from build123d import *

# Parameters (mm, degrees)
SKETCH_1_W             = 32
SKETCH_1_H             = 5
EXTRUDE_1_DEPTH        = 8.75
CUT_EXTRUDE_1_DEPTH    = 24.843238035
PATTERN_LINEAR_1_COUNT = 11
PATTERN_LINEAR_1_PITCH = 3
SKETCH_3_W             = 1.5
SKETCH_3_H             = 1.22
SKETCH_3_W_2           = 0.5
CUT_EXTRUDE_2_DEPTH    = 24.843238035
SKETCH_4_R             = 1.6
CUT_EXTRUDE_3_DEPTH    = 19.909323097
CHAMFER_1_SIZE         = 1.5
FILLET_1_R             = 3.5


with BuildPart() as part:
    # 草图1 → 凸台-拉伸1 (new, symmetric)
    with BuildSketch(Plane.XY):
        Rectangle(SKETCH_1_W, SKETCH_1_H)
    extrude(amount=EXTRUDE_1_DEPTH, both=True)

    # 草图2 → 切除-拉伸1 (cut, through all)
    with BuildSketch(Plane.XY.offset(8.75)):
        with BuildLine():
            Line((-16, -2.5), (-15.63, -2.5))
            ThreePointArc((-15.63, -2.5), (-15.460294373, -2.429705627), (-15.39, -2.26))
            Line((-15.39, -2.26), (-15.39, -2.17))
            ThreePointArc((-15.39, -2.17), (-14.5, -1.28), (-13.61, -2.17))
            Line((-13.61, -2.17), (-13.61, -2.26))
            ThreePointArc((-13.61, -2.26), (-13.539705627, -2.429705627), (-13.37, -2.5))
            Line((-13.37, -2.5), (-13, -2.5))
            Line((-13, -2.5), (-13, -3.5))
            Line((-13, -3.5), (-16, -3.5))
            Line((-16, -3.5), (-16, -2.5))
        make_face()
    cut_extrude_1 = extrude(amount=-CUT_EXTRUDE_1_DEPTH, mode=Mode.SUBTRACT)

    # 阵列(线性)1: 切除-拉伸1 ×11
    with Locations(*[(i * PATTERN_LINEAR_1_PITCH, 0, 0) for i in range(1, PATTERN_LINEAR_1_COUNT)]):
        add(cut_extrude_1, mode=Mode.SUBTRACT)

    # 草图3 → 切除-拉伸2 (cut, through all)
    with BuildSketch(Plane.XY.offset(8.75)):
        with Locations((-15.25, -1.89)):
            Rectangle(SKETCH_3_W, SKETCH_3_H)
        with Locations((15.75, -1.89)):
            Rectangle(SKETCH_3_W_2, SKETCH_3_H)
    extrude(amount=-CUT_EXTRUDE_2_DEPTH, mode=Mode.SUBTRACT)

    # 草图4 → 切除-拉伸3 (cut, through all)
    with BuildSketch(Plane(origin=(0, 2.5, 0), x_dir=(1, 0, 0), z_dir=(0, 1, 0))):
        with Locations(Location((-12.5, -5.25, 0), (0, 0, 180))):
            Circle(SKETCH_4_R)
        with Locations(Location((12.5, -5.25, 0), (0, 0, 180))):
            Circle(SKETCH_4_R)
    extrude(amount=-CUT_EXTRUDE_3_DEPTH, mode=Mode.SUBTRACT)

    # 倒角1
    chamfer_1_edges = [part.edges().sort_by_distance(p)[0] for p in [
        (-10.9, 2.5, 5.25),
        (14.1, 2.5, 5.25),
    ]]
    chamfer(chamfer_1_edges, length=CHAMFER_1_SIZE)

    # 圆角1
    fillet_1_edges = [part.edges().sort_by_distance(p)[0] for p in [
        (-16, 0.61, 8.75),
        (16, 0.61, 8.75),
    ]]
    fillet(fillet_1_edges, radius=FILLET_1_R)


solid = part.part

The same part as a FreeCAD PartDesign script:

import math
import FreeCAD as App
import Part
import Sketcher


def edges_at(feature, points):
    """Names of the edges that pass closest to the given points."""
    edges = feature.Shape.Edges
    near = lambda p: min(range(len(edges)), key=lambda i: edges[i].distToShape(Part.Vertex(*p))[0])
    return sorted({f"Edge{near(p) + 1}" for p in points})


def add_polygon(sketch, points):
    """Adds a closed chain of lines whose ends are joined by coincident constraints."""
    first, n = sketch.GeometryCount, len(points)
    for a, b in zip(points, points[1:] + points[:1]):
        sketch.addGeometry(Part.LineSegment(App.Vector(*a, 0), App.Vector(*b, 0)), False)
    for i in range(n):
        sketch.addConstraint(Sketcher.Constraint("Coincident", first + i, 2, first + (i + 1) % n, 1))

doc = App.newDocument("Part")
body = doc.addObject("PartDesign::Body", "Body")

sketch1 = doc.addObject("Sketcher::SketchObject", "Sketch")
body.addObject(sketch1)
sketch1.AttachmentSupport = (doc.XY_Plane, [""])
sketch1.MapMode = "FlatFace"
add_polygon(sketch1, [(-16, 2.5), (-16, -2.5), (16, -2.5), (16, 2.5)])
sketch1.addConstraint([
    Sketcher.Constraint("Vertical", 0),
    Sketcher.Constraint("Horizontal", 1),
    Sketcher.Constraint("Vertical", 2),
    Sketcher.Constraint("Horizontal", 3),
    Sketcher.Constraint("Symmetric", 0, 2, 2, 2, -1, 1),
    Sketcher.Constraint("DistanceX", 1, 1, 1, 2, 32.0),
    Sketcher.Constraint("DistanceY", 0, 2, 0, 1, 5.0),
])
pad1 = doc.addObject("PartDesign::Pad", "Pad")
body.addObject(pad1)
pad1.Profile = sketch1
pad1.Length = 17.5
pad1.Midplane = True

sketch2 = doc.addObject("Sketcher::SketchObject", "Sketch001")
body.addObject(sketch2)
sketch2.AttachmentSupport = (doc.XY_Plane, [""])
sketch2.MapMode = "FlatFace"
sketch2.AttachmentOffset = App.Placement(App.Vector(0, 0, 8.75), App.Rotation())
sketch2.addGeometry([
    Part.LineSegment(App.Vector(-15.63, -2.5, 0), App.Vector(-16, -2.5, 0)),
    Part.LineSegment(App.Vector(-16, -2.5, 0), App.Vector(-16, -3.5, 0)),
    Part.LineSegment(App.Vector(-16, -3.5, 0), App.Vector(-13, -3.5, 0)),
    Part.LineSegment(App.Vector(-13, -3.5, 0), App.Vector(-13, -2.5, 0)),
    Part.LineSegment(App.Vector(-13, -2.5, 0), App.Vector(-13.37, -2.5, 0)),
    Part.ArcOfCircle(Part.Circle(App.Vector(-13.37, -2.26, 0), App.Vector(0, 0, 1), 0.24), math.radians(-180), math.radians(-90)),
    Part.LineSegment(App.Vector(-13.61, -2.26, 0), App.Vector(-13.61, -2.17, 0)),
    Part.ArcOfCircle(Part.Circle(App.Vector(-14.5, -2.17, 0), App.Vector(0, 0, 1), 0.89), math.radians(0), math.radians(180)),
    Part.LineSegment(App.Vector(-15.39, -2.17, 0), App.Vector(-15.39, -2.26, 0)),
    Part.ArcOfCircle(Part.Circle(App.Vector(-15.63, -2.26, 0), App.Vector(0, 0, 1), 0.24), math.radians(-90), math.radians(0)),
], False)
sketch2.addConstraint([
    Sketcher.Constraint("Coincident", 0, 2, 1, 1),
    Sketcher.Constraint("Coincident", 1, 2, 2, 1),
    Sketcher.Constraint("Coincident", 2, 2, 3, 1),
    Sketcher.Constraint("Coincident", 3, 2, 4, 1),
    Sketcher.Constraint("Tangent", 4, 2, 5, 2),
    Sketcher.Constraint("Tangent", 5, 1, 6, 1),
    Sketcher.Constraint("Tangent", 6, 2, 7, 1),
    Sketcher.Constraint("Tangent", 7, 2, 8, 1),
    Sketcher.Constraint("Tangent", 8, 2, 9, 2),
    Sketcher.Constraint("Tangent", 9, 1, 0, 1),
    Sketcher.Constraint("Horizontal", 0),
    Sketcher.Constraint("Vertical", 1),
    Sketcher.Constraint("Horizontal", 2),
    Sketcher.Constraint("Vertical", 3),
    Sketcher.Constraint("Horizontal", 4),
    Sketcher.Constraint("Vertical", 6),
    Sketcher.Constraint("Vertical", 8),
    Sketcher.Constraint("Equal", 5, 9),
    Sketcher.Constraint("Horizontal", 5, 3, 9, 3),
    Sketcher.Constraint("Equal", 0, 4),
    Sketcher.Constraint("DistanceX", 2, 1, 2, 2, 3.0),
    Sketcher.Constraint("DistanceY", 1, 2, 1, 1, 1.0),
    Sketcher.Constraint("Radius", 5, 0.24),
    Sketcher.Constraint("Radius", 7, 0.89),
    Sketcher.Constraint("DistanceX", 0, 2, -1, 1, 16.0),
    Sketcher.Constraint("DistanceY", 6, 1, 6, 2, 0.09),
    Sketcher.Constraint("DistanceY", 0, 2, -1, 1, 2.5),
])
pocket1 = doc.addObject("PartDesign::Pocket", "Pocket")
body.addObject(pocket1)
pocket1.Profile = sketch2
pocket1.Type = "ThroughAll"
doc.recompute()

linearpattern = doc.addObject("PartDesign::LinearPattern", "LinearPattern")
body.addObject(linearpattern)
linearpattern.Originals = [pocket1]
linearpattern.Direction = (doc.X_Axis, [""])
linearpattern.Mode = "offset"
linearpattern.Offset = 3
linearpattern.Occurrences = 11
body.Tip = linearpattern

sketch3 = doc.addObject("Sketcher::SketchObject", "Sketch002")
body.addObject(sketch3)
sketch3.AttachmentSupport = (doc.XY_Plane, [""])
sketch3.MapMode = "FlatFace"
sketch3.AttachmentOffset = App.Placement(App.Vector(0, 0, 8.75), App.Rotation())
add_polygon(sketch3, [(-16, -1.28), (-16, -2.5), (-14.5, -2.5), (-14.5, -1.28)])
add_polygon(sketch3, [(15.5, -1.28), (15.5, -2.5), (16, -2.5), (16, -1.28)])
sketch3.addConstraint([
    Sketcher.Constraint("Vertical", 0),
    Sketcher.Constraint("Horizontal", 1),
    Sketcher.Constraint("Vertical", 2),
    Sketcher.Constraint("Horizontal", 3),
    Sketcher.Constraint("Vertical", 4),
    Sketcher.Constraint("Horizontal", 5),
    Sketcher.Constraint("Vertical", 6),
    Sketcher.Constraint("Horizontal", 7),
    Sketcher.Constraint("Symmetric", 0, 2, 5, 2, -2),
    Sketcher.Constraint("Horizontal", 3, 2, 6, 2),
    Sketcher.Constraint("DistanceX", 1, 1, 1, 2, 1.5),
    Sketcher.Constraint("DistanceX", 5, 1, 5, 2, 0.5),
    Sketcher.Constraint("DistanceX", 0, 2, -1, 1, 16.0),
    Sketcher.Constraint("DistanceY", 0, 2, 0, 1, 1.22),
    Sketcher.Constraint("DistanceY", 0, 2, -1, 1, 2.5),
])
pocket2 = doc.addObject("PartDesign::Pocket", "Pocket001")
body.addObject(pocket2)
pocket2.Profile = sketch3
pocket2.Type = "ThroughAll"

sketch4 = doc.addObject("Sketcher::SketchObject", "Sketch003")
body.addObject(sketch4)
sketch4.AttachmentSupport = (doc.XZ_Plane, [""])
sketch4.MapMode = "FlatFace"
sketch4.AttachmentOffset = App.Placement(App.Vector(0, 0, -2.5), App.Rotation())
sketch4.addGeometry([
    Part.Circle(App.Vector(-12.5, 5.25, 0), App.Vector(0, 0, 1), 1.6),
    Part.Circle(App.Vector(12.5, 5.25, 0), App.Vector(0, 0, 1), 1.6),
], False)
sketch4.addConstraint([
    Sketcher.Constraint("Equal", 0, 1),
    Sketcher.Constraint("Symmetric", 0, 3, 1, 3, -2),
    Sketcher.Constraint("Diameter", 0, 3.2),
    Sketcher.Constraint("DistanceX", 0, 3, 1, 3, 25.0),
    Sketcher.Constraint("DistanceY", -1, 1, 0, 3, 5.25),
])
pocket3 = doc.addObject("PartDesign::Pocket", "Pocket002")
body.addObject(pocket3)
pocket3.Profile = sketch4
pocket3.Type = "ThroughAll"
pocket3.Reversed = True
doc.recompute()

chamfer = doc.addObject("PartDesign::Chamfer", "Chamfer")
body.addObject(chamfer)
chamfer.Base = (pocket3, edges_at(pocket3, [(-10.9, 2.5, 5.25), (14.1, 2.5, 5.25)]))
chamfer.Size = 1.5
doc.recompute()

fillet = doc.addObject("PartDesign::Fillet", "Fillet")
body.addObject(fillet)
fillet.Base = (chamfer, edges_at(chamfer, [(-16, 0.61, 8.75), (16, 0.61, 8.75)]))
fillet.Radius = 3.5

doc.recompute()
